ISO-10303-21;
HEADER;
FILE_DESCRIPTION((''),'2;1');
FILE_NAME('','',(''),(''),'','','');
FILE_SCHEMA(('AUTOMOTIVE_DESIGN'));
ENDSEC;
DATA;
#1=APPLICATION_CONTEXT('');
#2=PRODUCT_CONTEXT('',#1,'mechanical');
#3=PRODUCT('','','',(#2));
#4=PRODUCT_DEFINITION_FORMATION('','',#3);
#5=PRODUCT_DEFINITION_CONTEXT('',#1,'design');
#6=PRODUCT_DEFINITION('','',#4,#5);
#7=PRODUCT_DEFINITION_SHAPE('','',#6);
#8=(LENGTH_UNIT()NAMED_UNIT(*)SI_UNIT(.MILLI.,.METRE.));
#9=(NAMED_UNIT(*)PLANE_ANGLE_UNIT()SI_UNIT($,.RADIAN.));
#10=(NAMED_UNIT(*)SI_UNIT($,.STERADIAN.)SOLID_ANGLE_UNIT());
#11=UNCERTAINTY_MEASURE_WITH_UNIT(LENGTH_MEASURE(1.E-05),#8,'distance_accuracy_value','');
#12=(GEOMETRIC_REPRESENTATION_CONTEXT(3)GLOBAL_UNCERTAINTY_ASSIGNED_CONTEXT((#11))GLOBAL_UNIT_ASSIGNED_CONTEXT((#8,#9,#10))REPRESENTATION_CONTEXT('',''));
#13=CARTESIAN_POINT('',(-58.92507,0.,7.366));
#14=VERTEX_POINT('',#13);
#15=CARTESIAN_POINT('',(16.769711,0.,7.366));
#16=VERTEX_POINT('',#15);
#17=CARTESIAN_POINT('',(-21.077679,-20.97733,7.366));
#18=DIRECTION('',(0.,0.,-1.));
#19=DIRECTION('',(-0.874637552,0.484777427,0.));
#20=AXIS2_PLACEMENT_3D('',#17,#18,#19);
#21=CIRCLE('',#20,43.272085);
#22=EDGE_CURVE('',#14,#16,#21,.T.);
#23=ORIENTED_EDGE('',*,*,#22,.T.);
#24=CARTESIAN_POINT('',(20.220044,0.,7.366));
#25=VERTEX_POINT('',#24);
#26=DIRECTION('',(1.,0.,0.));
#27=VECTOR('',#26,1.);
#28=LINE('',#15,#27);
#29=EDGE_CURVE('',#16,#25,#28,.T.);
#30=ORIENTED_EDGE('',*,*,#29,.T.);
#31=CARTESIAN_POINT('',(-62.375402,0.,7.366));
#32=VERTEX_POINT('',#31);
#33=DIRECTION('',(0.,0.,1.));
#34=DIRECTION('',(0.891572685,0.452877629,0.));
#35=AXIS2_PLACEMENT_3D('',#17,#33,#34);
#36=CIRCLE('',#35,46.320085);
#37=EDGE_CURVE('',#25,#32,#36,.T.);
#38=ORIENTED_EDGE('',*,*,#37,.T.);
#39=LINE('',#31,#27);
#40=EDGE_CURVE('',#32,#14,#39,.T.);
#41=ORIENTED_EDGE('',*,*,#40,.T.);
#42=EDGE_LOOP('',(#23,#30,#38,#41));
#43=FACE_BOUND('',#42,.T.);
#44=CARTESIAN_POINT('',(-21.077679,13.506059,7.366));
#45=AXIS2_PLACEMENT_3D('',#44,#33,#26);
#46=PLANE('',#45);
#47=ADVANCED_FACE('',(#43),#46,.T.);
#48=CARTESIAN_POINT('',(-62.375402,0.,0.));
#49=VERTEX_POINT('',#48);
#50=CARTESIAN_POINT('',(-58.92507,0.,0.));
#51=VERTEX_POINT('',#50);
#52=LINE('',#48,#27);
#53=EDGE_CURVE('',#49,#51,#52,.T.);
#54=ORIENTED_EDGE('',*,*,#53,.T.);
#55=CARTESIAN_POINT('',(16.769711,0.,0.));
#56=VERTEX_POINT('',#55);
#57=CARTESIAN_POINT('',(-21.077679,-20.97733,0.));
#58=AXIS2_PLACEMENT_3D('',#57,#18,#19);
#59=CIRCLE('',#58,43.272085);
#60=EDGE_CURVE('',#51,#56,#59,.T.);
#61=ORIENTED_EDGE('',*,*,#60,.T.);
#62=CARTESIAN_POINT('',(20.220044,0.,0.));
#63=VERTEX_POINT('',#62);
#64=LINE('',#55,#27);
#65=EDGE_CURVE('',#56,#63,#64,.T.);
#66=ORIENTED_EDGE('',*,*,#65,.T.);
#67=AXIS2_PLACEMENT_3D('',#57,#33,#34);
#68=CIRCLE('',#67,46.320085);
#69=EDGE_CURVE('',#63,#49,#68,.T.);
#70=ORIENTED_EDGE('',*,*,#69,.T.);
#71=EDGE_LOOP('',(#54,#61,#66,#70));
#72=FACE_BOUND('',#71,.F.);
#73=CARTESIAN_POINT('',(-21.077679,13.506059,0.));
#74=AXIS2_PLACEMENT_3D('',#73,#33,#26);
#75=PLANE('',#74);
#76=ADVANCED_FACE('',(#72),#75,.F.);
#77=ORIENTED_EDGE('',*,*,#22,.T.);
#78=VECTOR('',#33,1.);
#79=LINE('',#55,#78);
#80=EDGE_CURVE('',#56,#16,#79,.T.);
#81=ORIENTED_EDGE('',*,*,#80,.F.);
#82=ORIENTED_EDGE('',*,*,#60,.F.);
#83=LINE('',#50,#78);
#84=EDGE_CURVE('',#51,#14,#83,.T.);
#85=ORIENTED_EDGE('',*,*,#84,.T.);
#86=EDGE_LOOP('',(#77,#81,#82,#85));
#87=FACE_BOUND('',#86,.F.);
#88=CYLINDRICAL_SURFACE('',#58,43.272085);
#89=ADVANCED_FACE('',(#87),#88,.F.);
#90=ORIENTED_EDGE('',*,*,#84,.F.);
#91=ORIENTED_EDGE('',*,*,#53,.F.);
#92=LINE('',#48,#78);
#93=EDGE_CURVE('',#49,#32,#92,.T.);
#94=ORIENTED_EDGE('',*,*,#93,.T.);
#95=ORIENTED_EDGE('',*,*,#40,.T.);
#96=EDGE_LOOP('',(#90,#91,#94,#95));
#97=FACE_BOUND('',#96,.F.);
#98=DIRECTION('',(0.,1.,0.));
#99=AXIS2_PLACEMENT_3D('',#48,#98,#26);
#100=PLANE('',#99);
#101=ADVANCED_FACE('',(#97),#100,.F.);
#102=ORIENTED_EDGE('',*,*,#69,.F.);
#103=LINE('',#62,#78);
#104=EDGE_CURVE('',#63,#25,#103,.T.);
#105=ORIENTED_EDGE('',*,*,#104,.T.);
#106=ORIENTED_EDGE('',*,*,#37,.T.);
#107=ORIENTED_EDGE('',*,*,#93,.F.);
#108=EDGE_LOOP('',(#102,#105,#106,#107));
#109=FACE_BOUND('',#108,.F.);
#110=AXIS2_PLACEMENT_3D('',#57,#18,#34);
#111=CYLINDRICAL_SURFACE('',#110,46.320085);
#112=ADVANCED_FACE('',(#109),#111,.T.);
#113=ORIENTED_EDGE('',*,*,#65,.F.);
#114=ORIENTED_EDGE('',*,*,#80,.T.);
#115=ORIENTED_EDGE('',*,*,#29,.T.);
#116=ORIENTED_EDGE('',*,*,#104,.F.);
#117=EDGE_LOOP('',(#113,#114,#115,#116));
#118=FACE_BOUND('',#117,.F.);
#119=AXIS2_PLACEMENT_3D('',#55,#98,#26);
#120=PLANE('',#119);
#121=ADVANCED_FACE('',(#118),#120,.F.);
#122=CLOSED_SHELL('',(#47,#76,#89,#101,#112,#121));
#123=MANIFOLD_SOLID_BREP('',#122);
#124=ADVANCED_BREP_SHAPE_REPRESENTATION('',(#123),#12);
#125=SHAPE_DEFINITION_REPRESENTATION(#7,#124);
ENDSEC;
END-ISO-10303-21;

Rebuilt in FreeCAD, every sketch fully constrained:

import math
import FreeCAD as App
import Part
import Sketcher
from FreeCAD import Vector
Q = App.Units.Quantity

doc = App.newDocument("Part")
body = doc.addObject("PartDesign::Body", "Body")

sketch1 = doc.addObject("Sketcher::SketchObject", "Sketch")
body.addObject(sketch1)
sketch1.AttachmentSupport = (doc.XY_Plane, [""])
sketch1.MapMode = "FlatFace"
sketch1.addGeometry(Part.ArcOfCircle(Part.Circle(Vector(-21.1, -21, 0), Vector(0, 0, 1), 43.3), math.radians(29), math.radians(151)), False)
sketch1.addGeometry(Part.LineSegment(Vector(16.8, 0, 0), Vector(20.2, 0, 0)), False)
sketch1.addGeometry(Part.ArcOfCircle(Part.Circle(Vector(-21.1, -21, 0), Vector(0, 0, 1), 46.3), math.radians(27), math.radians(153)), False)
sketch1.addGeometry(Part.LineSegment(Vector(-62.4, 0, 0), Vector(-58.9, 0, 0)), False)
sketch1.addConstraint(Sketcher.Constraint("Coincident", 0, 1, 1, 1))
sketch1.addConstraint(Sketcher.Constraint("Coincident", 1, 2, 2, 1))
sketch1.addConstraint(Sketcher.Constraint("Coincident", 2, 2, 3, 1))
sketch1.addConstraint(Sketcher.Constraint("Coincident", 3, 2, 0, 2))
sketch1.addConstraint(Sketcher.Constraint("Horizontal", 1))
sketch1.addConstraint(Sketcher.Constraint("Horizontal", 3))
sketch1.addConstraint(Sketcher.Constraint("Coincident", 2, 3, 0, 3))
sketch1.addConstraint(Sketcher.Constraint("PointOnObject", 0, 1, -1))
sketch1.addConstraint(Sketcher.Constraint("PointOnObject", 2, 2, -1))
sketch1.addConstraint(Sketcher.Constraint("Radius", 0, 43.272085))
sketch1.addConstraint(Sketcher.Constraint("Radius", 2, 46.320085))
sketch1.addConstraint(Sketcher.Constraint("DistanceX", 2, 2, -1, 1, 62.375402))
sketch1.addConstraint(Sketcher.Constraint("DistanceX", 1, 1, 1, 2, 3.450333))
pad1 = doc.addObject("PartDesign::Pad", "Pad")
body.addObject(pad1)
pad1.Profile = sketch1
pad1.Length = Q("0.29 in")

doc.recompute()
